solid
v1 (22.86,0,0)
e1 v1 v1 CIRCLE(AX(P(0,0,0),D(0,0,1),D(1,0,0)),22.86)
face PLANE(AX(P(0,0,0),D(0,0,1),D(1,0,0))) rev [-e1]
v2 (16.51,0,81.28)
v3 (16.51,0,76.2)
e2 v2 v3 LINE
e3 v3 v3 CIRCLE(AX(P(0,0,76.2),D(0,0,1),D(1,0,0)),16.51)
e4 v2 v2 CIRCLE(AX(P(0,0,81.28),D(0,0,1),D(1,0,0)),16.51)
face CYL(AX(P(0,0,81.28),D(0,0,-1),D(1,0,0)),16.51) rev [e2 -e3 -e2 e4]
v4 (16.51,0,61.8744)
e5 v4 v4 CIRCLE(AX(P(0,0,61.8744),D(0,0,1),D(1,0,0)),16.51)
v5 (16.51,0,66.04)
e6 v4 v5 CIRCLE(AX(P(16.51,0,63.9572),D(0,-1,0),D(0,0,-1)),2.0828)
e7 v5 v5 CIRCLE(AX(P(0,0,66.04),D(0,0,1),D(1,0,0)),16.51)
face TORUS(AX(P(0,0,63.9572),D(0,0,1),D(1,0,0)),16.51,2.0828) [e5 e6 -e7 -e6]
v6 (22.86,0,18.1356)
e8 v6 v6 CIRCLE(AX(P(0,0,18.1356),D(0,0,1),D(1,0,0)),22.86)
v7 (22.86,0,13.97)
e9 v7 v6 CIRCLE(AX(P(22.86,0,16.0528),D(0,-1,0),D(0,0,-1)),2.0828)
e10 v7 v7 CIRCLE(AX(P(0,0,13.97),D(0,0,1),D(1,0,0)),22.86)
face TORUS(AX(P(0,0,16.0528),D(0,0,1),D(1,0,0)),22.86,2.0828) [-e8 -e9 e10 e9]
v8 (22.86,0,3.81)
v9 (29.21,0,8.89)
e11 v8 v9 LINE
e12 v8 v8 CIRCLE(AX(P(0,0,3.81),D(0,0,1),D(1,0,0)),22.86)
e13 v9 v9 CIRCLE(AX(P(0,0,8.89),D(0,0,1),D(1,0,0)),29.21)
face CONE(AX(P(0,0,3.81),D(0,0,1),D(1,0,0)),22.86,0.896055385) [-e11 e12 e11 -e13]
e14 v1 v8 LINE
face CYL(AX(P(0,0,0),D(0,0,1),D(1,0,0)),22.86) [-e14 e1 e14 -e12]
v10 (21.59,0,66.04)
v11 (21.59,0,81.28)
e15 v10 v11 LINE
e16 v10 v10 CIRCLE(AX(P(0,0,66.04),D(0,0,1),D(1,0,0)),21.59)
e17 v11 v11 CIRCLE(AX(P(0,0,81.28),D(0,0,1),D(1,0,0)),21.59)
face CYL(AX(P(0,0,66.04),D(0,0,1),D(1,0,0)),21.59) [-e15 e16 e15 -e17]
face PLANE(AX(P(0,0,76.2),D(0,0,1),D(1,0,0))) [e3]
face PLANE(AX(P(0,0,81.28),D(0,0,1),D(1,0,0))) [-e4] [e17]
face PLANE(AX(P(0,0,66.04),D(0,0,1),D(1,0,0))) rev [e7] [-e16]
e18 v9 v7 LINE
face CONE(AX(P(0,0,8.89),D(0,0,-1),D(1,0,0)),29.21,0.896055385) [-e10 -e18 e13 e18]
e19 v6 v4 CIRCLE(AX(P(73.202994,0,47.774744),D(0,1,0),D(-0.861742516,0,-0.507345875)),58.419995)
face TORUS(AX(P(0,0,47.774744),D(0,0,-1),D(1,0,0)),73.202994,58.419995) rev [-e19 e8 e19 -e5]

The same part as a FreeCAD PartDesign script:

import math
import FreeCAD as App
import Part
import Sketcher
Q = App.Units.Quantity

doc = App.newDocument("Part")
body = doc.addObject("PartDesign::Body", "Body")

sketch1 = body.newObject("Sketcher::SketchObject", "Sketch")
sketch1.AttachmentSupport = (doc.getObject("XZ_Plane"), [""])
sketch1.MapMode = "FlatFace"
sketch1.addGeometry([
    Part.LineSegment(App.Vector(16.5, 76.2, 0), App.Vector(0, 76.2, 0)),
    Part.LineSegment(App.Vector(0, 76.2, 0), App.Vector(0, 0, 0)),
    Part.LineSegment(App.Vector(0, 0, 0), App.Vector(22.9, 0, 0)),
    Part.LineSegment(App.Vector(22.9, 0, 0), App.Vector(22.9, 3.8, 0)),
    Part.LineSegment(App.Vector(22.9, 3.8, 0), App.Vector(29.2, 8.9, 0)),
    Part.LineSegment(App.Vector(29.2, 8.9, 0), App.Vector(22.9, 14, 0)),
    Part.ArcOfCircle(Part.Circle(App.Vector(22.9, 16.1, 0), App.Vector(0, 0, 1), 2.1), math.radians(-90), math.radians(90)),
    Part.ArcOfCircle(Part.Circle(App.Vector(73.2, 47.8, 0), App.Vector(0, 0, 1), 58.4), math.radians(166), math.radians(210)),
    Part.ArcOfCircle(Part.Circle(App.Vector(16.5, 64, 0), App.Vector(0, 0, 1), 2.1), math.radians(-90), math.radians(90)),
    Part.LineSegment(App.Vector(16.5, 66, 0), App.Vector(21.6, 66, 0)),
    Part.LineSegment(App.Vector(21.6, 66, 0), App.Vector(21.6, 81.3, 0)),
    Part.LineSegment(App.Vector(21.6, 81.3, 0), App.Vector(16.5, 81.3, 0)),
    Part.LineSegment(App.Vector(16.5, 81.3, 0), App.Vector(16.5, 76.2, 0)),
], False)
sketch1.addConstraint([
    Sketcher.Constraint("Coincident", 0, 2, 1, 1),
    Sketcher.Constraint("Coincident", 1, 2, 2, 1),
    Sketcher.Constraint("Coincident", 2, 2, 3, 1),
    Sketcher.Constraint("Coincident", 3, 2, 4, 1),
    Sketcher.Constraint("Coincident", 4, 2, 5, 1),
    Sketcher.Constraint("Coincident", 5, 2, 6, 1),
    Sketcher.Constraint("Coincident", 6, 2, 7, 2),
    Sketcher.Constraint("Coincident", 7, 1, 8, 1),
    Sketcher.Constraint("Tangent", 8, 2, 9, 1),
    Sketcher.Constraint("Coincident", 9, 2, 10, 1),
    Sketcher.Constraint("Coincident", 10, 2, 11, 1),
    Sketcher.Constraint("Coincident", 11, 2, 12, 1),
    Sketcher.Constraint("Coincident", 12, 2, 0, 1),
    Sketcher.Constraint("Horizontal", 0),
    Sketcher.Constraint("Vertical", 1),
    Sketcher.Constraint("Horizontal", 2),
    Sketcher.Constraint("Vertical", 3),
    Sketcher.Constraint("Horizontal", 9),
    Sketcher.Constraint("Vertical", 10),
    Sketcher.Constraint("Horizontal", 11),
    Sketcher.Constraint("Vertical", 12),
    Sketcher.Constraint("Coincident", 1, 2, -1, 1),
    Sketcher.Constraint("Equal", 6, 8),
    Sketcher.Constraint("Vertical", 6, 3, 2, 2),
    Sketcher.Constraint("Vertical", 3, 2, 5, 2),
    Sketcher.Constraint("Vertical", 5, 2, 6, 2),
    Sketcher.Constraint("Vertical", 8, 3, 7, 1),
    Sketcher.Constraint("Vertical", 8, 2, 11, 2),
    Sketcher.Constraint("Equal", 11, 12),
    Sketcher.Constraint("Equal", 4, 5),
    Sketcher.Constraint("Radius", 7, Q("2.2999998 in")),
    Sketcher.Constraint("DistanceY", 1, 2, 1, 1, Q("3 in")),
    Sketcher.Constraint("DistanceX", 2, 1, 2, 2, Q("0.9 in")),
    Sketcher.Constraint("DistanceX", 9, 1, 9, 2, Q("0.2 in")),
    Sketcher.Constraint("DistanceY", 10, 1, 10, 2, Q("0.6 in")),
    Sketcher.Constraint("Radius", 6, Q("0.082 in")),
    Sketcher.Constraint("DistanceX", 0, 2, 0, 1, Q("0.65 in")),
    Sketcher.Constraint("DistanceY", 3, 1, 3, 2, Q("0.15 in")),
    Sketcher.Constraint("DistanceY", 3, 2, 4, 2, Q("0.2 in")),
    Sketcher.Constraint("DistanceX", 8, 3, 4, 2, Q("0.5 in")),
])
revolution = body.newObject("PartDesign::Revolution", "Revolution")
revolution.Profile = sketch1
revolution.ReferenceAxis = (sketch1, ["V_Axis"])
revolution.Angle = 360

doc.recompute()
